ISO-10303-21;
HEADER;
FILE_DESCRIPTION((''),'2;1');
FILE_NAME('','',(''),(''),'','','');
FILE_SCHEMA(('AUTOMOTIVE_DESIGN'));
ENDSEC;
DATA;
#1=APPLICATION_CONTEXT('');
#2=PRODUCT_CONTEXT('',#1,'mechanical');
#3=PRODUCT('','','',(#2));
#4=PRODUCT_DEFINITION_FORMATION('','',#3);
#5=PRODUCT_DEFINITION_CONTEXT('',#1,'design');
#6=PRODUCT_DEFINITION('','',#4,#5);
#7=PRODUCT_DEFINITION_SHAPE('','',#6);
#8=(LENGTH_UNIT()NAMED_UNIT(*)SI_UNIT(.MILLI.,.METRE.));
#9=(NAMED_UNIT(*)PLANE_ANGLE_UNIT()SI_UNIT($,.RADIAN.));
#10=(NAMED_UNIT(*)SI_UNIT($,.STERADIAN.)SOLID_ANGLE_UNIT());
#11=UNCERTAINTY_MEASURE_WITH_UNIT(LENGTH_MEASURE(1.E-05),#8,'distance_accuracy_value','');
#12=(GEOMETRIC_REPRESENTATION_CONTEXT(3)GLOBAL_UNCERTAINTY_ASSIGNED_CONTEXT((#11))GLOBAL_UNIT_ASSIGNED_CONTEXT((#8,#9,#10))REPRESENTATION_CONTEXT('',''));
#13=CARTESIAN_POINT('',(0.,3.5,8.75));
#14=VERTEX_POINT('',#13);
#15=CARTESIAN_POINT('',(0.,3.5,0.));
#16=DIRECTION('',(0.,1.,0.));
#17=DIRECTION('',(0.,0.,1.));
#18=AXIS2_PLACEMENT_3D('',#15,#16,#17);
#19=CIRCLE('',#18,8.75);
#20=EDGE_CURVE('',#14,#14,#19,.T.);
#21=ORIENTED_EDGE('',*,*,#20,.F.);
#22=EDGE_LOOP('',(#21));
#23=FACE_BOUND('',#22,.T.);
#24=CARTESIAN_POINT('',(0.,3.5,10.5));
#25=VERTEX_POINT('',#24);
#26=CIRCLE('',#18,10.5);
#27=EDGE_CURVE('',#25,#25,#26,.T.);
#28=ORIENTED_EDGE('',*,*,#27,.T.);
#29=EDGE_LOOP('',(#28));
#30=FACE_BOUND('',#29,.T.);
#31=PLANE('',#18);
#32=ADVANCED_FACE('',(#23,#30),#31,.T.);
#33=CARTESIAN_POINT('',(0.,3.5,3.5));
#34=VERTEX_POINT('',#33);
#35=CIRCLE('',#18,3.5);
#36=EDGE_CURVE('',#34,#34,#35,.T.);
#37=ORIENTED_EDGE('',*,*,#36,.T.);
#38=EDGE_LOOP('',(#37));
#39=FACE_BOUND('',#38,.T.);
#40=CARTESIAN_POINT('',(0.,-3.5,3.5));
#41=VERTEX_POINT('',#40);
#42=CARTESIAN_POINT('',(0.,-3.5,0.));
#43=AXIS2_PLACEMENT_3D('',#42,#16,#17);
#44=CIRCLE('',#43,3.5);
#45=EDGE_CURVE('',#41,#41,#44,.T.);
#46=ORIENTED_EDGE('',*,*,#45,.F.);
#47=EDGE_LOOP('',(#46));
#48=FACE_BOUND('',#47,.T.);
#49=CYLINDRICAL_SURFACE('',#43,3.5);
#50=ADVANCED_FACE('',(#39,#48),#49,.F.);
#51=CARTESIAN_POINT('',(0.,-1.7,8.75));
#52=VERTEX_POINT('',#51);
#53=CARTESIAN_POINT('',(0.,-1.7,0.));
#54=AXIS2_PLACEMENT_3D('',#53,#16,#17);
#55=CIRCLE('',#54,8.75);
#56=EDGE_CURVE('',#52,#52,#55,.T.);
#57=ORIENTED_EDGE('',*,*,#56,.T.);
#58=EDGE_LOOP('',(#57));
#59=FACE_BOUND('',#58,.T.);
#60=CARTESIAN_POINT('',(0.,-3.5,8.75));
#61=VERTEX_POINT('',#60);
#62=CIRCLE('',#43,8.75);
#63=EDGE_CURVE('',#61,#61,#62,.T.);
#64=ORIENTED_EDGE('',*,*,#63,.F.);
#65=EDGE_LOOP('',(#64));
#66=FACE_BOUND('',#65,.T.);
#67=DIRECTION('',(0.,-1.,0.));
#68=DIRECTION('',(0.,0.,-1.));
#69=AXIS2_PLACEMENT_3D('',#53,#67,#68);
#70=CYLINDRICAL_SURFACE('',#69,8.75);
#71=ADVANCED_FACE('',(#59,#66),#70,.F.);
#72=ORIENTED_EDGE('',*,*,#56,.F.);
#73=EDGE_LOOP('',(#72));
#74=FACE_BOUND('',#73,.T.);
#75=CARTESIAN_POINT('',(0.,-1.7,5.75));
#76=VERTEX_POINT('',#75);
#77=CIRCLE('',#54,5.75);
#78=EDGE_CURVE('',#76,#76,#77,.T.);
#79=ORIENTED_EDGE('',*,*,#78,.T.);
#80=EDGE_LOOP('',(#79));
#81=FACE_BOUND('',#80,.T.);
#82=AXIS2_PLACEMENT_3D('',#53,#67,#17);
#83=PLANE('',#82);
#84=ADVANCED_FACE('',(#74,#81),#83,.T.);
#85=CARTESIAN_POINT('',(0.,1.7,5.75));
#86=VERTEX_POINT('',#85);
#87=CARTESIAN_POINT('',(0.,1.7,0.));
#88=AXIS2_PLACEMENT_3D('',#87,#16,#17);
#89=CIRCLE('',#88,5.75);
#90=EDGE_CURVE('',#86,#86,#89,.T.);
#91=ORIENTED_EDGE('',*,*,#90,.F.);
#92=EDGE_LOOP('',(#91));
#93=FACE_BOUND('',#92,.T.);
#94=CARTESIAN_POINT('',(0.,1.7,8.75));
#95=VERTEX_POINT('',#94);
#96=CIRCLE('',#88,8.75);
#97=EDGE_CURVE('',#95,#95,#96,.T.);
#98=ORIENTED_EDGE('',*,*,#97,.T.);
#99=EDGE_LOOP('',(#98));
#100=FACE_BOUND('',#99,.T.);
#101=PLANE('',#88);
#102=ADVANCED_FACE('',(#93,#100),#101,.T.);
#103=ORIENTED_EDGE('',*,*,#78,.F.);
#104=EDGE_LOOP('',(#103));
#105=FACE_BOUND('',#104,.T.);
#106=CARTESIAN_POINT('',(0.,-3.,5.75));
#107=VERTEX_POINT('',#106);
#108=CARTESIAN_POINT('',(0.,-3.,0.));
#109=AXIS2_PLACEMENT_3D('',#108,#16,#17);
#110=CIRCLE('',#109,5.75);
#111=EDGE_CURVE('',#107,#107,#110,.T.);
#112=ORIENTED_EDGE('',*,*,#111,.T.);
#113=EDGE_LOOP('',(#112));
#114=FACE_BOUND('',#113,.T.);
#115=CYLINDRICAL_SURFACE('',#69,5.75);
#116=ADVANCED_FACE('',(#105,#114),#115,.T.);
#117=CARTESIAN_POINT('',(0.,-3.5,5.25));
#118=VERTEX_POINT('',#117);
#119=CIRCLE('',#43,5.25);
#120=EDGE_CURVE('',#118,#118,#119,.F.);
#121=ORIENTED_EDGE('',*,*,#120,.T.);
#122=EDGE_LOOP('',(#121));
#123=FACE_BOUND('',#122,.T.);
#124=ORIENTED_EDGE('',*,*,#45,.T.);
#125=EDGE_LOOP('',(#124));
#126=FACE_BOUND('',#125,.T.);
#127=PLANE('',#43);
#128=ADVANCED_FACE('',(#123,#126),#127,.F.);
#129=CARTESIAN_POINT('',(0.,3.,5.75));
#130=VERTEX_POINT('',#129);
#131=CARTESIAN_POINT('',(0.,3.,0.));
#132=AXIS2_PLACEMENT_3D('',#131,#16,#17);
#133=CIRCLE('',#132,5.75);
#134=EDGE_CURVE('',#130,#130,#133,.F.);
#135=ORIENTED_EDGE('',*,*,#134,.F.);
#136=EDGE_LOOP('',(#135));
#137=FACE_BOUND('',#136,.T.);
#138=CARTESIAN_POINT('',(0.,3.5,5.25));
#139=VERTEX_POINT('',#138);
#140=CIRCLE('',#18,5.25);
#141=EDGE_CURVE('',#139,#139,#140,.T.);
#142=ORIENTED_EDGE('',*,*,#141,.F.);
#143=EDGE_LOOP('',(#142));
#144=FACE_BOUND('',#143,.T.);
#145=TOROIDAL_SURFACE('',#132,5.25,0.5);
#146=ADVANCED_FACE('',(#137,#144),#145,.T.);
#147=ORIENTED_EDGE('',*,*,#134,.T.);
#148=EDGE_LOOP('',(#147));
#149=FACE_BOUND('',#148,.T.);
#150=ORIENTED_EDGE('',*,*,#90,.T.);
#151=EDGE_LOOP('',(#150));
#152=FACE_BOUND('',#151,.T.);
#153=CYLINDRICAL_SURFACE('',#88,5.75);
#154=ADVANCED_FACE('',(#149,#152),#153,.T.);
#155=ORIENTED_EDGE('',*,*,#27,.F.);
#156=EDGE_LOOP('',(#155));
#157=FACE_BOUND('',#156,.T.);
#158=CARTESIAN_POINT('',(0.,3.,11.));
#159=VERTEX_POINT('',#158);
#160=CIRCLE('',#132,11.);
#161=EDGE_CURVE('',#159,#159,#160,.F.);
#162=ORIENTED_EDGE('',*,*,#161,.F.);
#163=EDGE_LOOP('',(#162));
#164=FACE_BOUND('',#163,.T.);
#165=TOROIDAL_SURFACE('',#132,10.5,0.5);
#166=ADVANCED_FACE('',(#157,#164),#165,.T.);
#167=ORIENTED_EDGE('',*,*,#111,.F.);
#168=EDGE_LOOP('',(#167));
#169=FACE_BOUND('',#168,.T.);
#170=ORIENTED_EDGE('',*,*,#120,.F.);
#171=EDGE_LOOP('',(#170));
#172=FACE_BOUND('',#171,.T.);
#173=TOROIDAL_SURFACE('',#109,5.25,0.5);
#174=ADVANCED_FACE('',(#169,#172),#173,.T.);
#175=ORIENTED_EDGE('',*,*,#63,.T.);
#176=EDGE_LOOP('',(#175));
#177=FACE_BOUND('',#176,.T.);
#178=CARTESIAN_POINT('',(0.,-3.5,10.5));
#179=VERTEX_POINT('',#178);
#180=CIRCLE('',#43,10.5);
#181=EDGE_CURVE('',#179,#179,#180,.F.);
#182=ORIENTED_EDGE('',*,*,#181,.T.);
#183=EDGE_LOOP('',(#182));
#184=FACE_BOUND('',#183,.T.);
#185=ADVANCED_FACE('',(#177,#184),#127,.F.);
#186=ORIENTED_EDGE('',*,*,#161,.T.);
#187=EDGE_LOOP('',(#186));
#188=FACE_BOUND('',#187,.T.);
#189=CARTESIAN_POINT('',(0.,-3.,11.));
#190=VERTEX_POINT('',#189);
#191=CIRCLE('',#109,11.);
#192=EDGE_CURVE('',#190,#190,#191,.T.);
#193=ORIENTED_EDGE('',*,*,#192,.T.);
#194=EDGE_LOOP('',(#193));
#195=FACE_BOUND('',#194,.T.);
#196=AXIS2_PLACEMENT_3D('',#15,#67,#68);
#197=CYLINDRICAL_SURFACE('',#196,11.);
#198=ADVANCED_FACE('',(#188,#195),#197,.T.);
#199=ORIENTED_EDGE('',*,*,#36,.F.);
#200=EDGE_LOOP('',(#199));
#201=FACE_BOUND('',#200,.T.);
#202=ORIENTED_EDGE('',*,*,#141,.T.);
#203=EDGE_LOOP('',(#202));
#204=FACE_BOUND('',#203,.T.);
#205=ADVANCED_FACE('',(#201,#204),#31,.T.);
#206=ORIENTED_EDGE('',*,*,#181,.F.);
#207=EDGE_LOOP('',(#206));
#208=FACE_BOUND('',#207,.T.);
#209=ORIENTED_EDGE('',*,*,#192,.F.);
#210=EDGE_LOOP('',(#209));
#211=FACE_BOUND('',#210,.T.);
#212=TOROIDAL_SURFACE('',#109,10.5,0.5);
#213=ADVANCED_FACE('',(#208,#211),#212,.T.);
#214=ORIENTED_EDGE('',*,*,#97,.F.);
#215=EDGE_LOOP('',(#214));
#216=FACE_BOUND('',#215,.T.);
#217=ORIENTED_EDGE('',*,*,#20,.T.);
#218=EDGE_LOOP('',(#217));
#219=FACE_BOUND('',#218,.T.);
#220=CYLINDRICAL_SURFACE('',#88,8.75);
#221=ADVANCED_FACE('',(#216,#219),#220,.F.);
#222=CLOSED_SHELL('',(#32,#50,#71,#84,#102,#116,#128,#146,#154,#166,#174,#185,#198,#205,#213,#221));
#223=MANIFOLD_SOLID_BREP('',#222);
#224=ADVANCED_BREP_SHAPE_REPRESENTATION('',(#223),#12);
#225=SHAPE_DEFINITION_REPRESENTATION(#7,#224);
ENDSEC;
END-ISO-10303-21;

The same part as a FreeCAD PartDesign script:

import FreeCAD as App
import Part
import Sketcher


def edges_at(feature, points):
    """Names of the edges that pass closest to the given points."""
    edges = feature.Shape.Edges
    near = lambda p: min(range(len(edges)), key=lambda i: edges[i].distToShape(Part.Vertex(*p))[0])
    return sorted({f"Edge{near(p) + 1}" for p in points})

doc = App.newDocument("Part")
body = doc.addObject("PartDesign::Body", "Body")

sketch1 = body.newObject("Sketcher::SketchObject", "Sketch")
sketch1.AttachmentSupport = (doc.getObject("XZ_Plane"), [""])
sketch1.MapMode = "FlatFace"
sketch1.addGeometry(Part.Circle(App.Vector(0, 0, 0), App.Vector(0, 0, 1), 11), False)
sketch1.addConstraint(Sketcher.Constraint("Coincident", 0, 3, -1, 1))
sketch1.addConstraint(Sketcher.Constraint("Diameter", 0, 22.0))
pad1 = body.newObject("PartDesign::Pad", "Pad")
pad1.Profile = sketch1
pad1.Length = 7
pad1.Midplane = True

sketch2 = body.newObject("Sketcher::SketchObject", "Sketch001")
sketch2.AttachmentSupport = (doc.getObject("XZ_Plane"), [""])
sketch2.MapMode = "FlatFace"
sketch2.AttachmentOffset = App.Placement(App.Vector(0, 0, -3.5), App.Rotation())
sketch2.addGeometry(Part.Circle(App.Vector(0, 0, 0), App.Vector(0, 0, 1), 3.5), False)
sketch2.addConstraint(Sketcher.Constraint("Coincident", 0, 3, -1, 1))
sketch2.addConstraint(Sketcher.Constraint("Diameter", 0, 7.0))
pocket1 = body.newObject("PartDesign::Pocket", "Pocket")
pocket1.Profile = sketch2
pocket1.Type = "ThroughAll"
pocket1.Reversed = True

sketch3 = body.newObject("Sketcher::SketchObject", "Sketch002")
sketch3.AttachmentSupport = (doc.getObject("XZ_Plane"), [""])
sketch3.MapMode = "FlatFace"
sketch3.AttachmentOffset = App.Placement(App.Vector(0, 0, -3.5), App.Rotation())
sketch3.addGeometry(Part.Circle(App.Vector(0, 0, 0), App.Vector(0, 0, 1), 9), False)
sketch3.addGeometry(Part.Circle(App.Vector(0, 0, 0), App.Vector(0, 0, 1), 6), False)
sketch3.addConstraint(Sketcher.Constraint("Coincident", 0, 3, -1, 1))
sketch3.addConstraint(Sketcher.Constraint("Coincident", 1, 3, -1, 1))
sketch3.addConstraint(Sketcher.Constraint("Diameter", 0, 17.5))
sketch3.addConstraint(Sketcher.Constraint("Diameter", 1, 11.5))
pocket2 = body.newObject("PartDesign::Pocket", "Pocket001")
pocket2.Profile = sketch3
pocket2.Length = 1.8
pocket2.Reversed = True
doc.recompute()

mirrored = body.newObject("PartDesign::Mirrored", "Mirrored")
mirrored.Originals = [pocket2]
mirrored.MirrorPlane = (doc.getObject("XZ_Plane"), [""])
body.Tip = mirrored
doc.recompute()

fillet = body.newObject("PartDesign::Fillet", "Fillet")
fillet.Base = (mirrored, edges_at(mirrored, [
    (-5.75, 3.5, 0),
    (-11, -3.5, 0),
    (-5.75, -3.5, 0),
    (-11, 3.5, 0),
]))
fillet.Radius = 0.5

doc.recompute()
